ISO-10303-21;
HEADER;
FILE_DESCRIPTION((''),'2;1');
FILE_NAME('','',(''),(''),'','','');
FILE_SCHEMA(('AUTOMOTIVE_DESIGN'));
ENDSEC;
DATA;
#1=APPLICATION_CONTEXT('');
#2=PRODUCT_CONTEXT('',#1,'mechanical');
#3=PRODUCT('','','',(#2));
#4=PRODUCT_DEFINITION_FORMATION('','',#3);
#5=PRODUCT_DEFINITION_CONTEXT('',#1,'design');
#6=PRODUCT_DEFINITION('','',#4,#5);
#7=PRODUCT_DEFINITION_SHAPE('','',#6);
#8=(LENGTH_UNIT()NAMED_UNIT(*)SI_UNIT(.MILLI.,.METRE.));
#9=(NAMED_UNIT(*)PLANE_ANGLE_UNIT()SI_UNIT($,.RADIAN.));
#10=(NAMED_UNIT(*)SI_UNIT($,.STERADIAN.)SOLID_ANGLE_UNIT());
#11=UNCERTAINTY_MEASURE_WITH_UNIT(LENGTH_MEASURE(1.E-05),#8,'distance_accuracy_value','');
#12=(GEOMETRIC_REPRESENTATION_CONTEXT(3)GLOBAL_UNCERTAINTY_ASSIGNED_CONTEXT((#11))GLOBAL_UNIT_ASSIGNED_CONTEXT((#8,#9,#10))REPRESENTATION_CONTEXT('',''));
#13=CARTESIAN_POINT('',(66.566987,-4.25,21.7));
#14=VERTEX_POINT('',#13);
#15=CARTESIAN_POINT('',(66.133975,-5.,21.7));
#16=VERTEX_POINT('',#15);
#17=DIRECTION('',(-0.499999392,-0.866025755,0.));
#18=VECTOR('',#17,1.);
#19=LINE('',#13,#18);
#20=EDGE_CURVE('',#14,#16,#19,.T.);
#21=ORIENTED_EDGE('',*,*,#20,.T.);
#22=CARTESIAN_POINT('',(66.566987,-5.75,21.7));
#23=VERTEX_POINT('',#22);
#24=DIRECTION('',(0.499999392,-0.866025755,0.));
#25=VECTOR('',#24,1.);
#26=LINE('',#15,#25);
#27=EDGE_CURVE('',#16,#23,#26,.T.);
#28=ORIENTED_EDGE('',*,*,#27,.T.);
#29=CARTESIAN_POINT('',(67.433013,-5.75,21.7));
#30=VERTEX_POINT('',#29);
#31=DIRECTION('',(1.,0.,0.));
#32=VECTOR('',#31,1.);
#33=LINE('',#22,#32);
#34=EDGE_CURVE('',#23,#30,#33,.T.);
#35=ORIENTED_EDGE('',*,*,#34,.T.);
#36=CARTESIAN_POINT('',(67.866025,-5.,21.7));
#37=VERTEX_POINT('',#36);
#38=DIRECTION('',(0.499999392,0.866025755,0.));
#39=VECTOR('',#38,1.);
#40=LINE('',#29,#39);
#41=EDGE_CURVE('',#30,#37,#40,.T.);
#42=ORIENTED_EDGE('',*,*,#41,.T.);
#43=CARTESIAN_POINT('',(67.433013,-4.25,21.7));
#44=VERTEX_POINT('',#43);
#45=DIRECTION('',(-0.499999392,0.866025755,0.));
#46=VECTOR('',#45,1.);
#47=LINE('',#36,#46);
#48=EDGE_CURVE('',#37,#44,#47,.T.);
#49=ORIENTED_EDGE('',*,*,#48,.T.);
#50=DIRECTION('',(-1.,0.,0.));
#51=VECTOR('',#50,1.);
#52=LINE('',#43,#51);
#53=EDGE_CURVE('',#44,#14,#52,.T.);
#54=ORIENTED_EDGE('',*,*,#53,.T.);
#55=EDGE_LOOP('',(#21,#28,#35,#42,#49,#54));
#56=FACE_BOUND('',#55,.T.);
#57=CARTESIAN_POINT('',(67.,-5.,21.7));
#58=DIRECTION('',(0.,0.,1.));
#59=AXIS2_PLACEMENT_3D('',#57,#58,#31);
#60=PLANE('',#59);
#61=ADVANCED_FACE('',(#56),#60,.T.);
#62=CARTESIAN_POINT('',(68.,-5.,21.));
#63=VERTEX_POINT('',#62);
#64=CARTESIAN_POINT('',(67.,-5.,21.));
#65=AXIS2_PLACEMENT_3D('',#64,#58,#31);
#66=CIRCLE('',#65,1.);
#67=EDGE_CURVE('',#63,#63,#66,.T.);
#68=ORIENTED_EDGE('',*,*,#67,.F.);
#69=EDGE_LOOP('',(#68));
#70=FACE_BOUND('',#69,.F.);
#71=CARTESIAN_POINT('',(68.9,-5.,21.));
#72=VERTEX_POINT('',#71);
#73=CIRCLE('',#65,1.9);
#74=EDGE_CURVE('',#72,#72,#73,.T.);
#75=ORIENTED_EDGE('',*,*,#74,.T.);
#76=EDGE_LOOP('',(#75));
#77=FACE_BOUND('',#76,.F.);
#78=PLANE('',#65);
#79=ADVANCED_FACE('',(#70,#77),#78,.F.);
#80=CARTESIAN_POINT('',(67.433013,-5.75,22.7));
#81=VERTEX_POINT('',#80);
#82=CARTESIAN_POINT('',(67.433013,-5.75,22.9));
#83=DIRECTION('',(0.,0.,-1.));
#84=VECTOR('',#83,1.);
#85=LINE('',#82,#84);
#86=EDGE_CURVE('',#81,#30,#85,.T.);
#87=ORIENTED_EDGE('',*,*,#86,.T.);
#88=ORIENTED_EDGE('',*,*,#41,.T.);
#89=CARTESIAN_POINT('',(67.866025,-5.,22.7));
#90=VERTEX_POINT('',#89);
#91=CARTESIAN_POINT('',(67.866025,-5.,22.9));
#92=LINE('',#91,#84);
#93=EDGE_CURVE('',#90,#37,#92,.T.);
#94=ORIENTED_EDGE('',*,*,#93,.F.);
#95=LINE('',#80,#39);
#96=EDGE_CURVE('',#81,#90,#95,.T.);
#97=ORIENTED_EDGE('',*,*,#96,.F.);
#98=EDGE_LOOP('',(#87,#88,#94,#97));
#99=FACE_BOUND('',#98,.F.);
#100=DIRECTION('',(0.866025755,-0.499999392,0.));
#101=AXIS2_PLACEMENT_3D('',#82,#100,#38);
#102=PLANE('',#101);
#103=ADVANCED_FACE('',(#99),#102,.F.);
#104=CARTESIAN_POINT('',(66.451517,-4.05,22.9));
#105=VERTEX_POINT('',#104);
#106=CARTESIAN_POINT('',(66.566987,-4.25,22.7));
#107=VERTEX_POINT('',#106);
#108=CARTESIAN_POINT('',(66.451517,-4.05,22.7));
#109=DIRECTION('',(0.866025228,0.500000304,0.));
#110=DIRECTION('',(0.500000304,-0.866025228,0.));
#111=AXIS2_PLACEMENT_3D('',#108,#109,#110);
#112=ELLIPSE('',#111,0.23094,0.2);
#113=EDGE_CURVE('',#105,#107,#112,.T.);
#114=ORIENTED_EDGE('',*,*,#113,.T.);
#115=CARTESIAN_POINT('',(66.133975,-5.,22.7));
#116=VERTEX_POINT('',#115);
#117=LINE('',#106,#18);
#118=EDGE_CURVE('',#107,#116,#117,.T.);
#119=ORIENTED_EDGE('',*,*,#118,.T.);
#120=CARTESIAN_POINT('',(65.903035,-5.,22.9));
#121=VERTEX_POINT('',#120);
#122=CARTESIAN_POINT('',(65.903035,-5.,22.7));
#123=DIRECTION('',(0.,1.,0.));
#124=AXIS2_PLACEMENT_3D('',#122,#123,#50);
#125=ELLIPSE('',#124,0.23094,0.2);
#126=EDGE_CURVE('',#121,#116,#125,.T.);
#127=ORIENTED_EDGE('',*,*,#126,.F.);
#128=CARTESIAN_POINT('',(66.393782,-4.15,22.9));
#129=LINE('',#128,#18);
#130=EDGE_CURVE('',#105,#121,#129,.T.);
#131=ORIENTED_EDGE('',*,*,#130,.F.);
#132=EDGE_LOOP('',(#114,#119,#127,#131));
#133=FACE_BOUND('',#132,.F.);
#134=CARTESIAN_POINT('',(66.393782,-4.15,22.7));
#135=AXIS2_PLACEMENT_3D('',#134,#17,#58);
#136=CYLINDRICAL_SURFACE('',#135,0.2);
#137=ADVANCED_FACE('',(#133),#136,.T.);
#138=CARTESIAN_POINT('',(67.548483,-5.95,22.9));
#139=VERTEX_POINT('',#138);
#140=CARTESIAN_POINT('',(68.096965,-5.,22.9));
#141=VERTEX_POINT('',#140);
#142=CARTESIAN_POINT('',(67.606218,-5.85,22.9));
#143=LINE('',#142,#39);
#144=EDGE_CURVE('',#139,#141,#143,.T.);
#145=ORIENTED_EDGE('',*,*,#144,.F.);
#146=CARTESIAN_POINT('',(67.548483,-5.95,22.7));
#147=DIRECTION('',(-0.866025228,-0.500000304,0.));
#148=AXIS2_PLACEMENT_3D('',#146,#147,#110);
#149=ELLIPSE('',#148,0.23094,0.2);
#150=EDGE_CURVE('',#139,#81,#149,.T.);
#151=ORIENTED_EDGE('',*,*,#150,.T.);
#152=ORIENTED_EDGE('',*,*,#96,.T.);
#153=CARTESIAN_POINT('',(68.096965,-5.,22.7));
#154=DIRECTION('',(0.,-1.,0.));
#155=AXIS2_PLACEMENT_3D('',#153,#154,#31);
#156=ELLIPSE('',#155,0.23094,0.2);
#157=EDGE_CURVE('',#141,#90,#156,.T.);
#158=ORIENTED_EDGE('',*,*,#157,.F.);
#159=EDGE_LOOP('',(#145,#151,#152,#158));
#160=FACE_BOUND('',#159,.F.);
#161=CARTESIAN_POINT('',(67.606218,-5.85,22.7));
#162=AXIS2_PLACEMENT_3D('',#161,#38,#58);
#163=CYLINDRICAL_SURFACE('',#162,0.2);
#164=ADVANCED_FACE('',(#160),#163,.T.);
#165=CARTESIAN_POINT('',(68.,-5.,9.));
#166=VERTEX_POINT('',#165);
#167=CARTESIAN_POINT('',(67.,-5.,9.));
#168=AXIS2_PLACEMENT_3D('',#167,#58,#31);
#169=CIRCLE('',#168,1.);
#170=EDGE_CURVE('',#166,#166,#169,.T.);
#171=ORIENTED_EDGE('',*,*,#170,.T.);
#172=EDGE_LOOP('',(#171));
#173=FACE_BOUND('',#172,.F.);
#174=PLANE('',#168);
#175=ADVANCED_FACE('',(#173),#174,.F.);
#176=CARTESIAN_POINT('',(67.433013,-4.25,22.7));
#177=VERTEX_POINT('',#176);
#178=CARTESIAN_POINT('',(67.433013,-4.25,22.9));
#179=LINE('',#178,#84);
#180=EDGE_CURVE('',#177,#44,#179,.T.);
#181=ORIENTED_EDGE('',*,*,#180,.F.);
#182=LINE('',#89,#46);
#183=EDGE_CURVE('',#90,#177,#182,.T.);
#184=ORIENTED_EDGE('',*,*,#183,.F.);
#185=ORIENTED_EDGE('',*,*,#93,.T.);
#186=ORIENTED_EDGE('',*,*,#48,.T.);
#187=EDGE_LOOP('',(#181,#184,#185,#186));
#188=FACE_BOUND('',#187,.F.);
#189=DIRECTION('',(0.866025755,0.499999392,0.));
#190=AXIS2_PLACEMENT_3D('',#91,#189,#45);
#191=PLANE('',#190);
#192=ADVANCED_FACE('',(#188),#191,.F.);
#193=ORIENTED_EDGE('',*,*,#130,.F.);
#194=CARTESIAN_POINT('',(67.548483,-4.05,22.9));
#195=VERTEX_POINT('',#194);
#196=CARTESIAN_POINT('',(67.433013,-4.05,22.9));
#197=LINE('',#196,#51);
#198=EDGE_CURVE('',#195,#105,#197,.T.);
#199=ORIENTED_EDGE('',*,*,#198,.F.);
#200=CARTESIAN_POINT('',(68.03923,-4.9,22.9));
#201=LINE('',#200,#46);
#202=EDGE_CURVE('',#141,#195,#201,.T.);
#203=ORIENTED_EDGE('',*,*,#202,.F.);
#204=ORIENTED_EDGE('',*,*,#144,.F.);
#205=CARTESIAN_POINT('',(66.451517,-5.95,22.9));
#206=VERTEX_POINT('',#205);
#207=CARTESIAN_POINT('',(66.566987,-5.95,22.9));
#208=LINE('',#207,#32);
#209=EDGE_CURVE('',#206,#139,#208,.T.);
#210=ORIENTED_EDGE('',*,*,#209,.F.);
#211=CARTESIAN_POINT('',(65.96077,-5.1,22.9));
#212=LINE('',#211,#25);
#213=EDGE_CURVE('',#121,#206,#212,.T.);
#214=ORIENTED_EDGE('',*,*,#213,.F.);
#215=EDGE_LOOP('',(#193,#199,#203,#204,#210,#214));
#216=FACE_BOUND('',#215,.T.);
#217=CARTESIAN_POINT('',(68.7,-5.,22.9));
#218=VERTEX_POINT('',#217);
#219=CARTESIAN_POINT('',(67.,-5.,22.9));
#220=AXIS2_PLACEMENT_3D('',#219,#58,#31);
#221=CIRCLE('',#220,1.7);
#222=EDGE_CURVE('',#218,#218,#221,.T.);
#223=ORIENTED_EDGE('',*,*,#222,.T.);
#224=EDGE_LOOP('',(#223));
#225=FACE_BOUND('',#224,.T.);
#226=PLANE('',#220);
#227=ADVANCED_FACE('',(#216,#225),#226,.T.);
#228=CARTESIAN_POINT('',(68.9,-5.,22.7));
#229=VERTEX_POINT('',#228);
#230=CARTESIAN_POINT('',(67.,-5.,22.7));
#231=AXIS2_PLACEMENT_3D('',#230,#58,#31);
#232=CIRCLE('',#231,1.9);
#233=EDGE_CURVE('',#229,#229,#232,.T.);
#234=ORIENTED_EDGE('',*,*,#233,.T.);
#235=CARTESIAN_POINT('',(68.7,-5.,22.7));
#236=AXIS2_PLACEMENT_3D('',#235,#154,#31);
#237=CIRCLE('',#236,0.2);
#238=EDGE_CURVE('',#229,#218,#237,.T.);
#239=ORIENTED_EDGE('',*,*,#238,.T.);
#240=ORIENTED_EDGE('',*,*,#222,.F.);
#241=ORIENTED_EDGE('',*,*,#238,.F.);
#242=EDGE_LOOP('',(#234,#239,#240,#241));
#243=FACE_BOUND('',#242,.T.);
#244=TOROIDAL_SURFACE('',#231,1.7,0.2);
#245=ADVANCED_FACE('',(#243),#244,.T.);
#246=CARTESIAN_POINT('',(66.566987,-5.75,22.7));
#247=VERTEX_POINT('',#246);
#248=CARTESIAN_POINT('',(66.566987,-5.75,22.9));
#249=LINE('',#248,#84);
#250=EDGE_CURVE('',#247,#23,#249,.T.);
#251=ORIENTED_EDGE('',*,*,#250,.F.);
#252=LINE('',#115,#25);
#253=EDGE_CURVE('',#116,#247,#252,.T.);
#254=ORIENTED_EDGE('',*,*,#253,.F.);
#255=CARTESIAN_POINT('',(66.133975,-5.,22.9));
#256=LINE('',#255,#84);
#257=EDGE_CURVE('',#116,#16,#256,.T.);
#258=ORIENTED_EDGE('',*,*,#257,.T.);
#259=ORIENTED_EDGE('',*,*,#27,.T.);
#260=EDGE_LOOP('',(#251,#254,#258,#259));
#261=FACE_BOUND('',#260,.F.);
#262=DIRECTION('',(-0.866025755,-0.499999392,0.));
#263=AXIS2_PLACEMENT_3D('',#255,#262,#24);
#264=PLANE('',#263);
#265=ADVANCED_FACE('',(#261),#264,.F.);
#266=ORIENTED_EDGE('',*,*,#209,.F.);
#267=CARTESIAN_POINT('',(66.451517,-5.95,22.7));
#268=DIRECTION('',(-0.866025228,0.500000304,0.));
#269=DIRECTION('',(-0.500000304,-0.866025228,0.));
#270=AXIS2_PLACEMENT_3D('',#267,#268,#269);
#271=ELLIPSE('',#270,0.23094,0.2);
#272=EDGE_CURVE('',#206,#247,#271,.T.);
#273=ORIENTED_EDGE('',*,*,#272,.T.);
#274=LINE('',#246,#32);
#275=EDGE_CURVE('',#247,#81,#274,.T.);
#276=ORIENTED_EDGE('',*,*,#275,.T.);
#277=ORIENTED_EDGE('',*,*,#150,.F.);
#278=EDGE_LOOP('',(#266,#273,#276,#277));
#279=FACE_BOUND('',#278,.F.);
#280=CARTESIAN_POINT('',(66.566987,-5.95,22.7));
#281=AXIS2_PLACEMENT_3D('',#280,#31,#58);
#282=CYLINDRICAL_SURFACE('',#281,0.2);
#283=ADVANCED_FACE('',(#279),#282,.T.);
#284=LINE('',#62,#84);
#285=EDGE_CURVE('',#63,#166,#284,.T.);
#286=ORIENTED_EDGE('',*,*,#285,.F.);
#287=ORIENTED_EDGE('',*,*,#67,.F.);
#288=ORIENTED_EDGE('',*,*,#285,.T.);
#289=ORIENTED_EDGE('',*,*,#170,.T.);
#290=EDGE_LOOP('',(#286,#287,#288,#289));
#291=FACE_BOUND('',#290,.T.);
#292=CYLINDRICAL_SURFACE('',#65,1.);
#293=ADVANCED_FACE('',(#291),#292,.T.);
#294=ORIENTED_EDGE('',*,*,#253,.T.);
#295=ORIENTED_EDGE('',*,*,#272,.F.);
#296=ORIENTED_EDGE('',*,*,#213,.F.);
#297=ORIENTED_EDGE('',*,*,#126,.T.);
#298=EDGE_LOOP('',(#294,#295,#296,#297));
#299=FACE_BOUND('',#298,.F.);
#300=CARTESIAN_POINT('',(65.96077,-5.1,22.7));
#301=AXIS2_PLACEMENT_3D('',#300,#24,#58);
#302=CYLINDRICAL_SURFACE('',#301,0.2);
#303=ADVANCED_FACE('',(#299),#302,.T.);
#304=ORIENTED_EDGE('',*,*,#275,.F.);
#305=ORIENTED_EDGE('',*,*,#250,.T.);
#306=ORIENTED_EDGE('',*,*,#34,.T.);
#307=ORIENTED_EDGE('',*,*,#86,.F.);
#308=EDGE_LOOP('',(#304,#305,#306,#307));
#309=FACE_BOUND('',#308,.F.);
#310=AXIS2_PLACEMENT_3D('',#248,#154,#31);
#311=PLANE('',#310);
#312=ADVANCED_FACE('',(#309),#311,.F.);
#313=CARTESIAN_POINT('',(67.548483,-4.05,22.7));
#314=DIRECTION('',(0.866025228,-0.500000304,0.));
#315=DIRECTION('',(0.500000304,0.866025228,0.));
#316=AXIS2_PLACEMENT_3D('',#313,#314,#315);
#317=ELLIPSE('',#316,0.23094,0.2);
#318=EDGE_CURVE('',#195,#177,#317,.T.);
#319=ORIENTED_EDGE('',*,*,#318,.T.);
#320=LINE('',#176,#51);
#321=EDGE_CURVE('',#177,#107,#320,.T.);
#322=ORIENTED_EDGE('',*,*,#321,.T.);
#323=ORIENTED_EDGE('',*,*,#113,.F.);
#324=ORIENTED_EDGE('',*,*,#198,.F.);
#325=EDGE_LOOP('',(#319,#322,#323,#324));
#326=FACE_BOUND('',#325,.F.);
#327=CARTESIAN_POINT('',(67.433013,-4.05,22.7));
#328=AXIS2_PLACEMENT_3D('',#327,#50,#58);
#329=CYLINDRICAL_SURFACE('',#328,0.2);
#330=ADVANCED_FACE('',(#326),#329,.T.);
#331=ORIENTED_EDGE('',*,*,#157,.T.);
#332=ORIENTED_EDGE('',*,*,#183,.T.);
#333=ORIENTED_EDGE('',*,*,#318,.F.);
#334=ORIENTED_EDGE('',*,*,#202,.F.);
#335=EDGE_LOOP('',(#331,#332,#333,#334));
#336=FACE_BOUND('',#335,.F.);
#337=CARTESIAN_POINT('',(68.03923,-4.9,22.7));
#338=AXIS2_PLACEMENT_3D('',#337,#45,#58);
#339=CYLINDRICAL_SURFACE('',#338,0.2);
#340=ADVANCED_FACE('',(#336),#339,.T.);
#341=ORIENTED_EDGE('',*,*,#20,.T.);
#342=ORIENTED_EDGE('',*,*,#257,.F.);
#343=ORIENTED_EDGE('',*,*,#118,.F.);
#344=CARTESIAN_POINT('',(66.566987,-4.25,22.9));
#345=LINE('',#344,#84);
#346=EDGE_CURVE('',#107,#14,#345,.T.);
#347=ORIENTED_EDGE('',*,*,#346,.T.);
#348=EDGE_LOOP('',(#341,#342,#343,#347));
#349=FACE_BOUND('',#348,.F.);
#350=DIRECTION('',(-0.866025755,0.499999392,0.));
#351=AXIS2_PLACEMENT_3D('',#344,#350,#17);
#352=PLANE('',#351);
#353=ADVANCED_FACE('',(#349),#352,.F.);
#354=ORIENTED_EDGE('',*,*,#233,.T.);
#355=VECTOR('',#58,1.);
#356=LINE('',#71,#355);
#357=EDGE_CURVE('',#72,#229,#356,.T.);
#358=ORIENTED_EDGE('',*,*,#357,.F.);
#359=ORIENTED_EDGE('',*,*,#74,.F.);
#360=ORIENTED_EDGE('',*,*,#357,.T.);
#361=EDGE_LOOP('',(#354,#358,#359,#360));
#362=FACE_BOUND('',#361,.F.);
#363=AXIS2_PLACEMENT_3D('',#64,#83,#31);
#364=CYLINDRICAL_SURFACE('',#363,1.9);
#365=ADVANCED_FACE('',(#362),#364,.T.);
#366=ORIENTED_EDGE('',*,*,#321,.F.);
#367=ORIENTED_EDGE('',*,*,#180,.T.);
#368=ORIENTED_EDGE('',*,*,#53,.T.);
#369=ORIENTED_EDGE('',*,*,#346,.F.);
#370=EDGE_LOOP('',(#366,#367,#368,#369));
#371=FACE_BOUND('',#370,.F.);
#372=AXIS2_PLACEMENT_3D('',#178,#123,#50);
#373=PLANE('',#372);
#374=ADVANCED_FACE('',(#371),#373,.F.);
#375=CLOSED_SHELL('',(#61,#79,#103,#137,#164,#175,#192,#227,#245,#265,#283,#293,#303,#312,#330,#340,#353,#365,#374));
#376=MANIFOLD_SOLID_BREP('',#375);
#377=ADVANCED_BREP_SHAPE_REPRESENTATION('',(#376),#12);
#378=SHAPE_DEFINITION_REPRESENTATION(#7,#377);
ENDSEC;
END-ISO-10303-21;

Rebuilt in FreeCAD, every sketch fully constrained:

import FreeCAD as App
import Part
import Sketcher

V = App.Vector


def edges_at(feature, points):
    """Names of the edges that pass closest to the given points."""
    edges = feature.Shape.Edges
    near = lambda p: min(range(len(edges)), key=lambda i: edges[i].distToShape(Part.Vertex(*p))[0])
    return sorted({f"Edge{near(p) + 1}" for p in points})

doc = App.newDocument("Part")
params = doc.addObject("Spreadsheet::Sheet", "Params")
for row, (alias, value) in enumerate([
    ("sketch1_diameter", "3.8 mm"),
    ("pad1_length", "1.9 mm"),
    ("pocket1_length", "1.2 mm"),
    ("sketch3_diameter", "2 mm"),
    ("pad2_length", "12 mm"),
    ("fillet_radius", "0.2 mm"),
], start=1):
    params.set(f"A{row}", alias)
    params.set(f"B{row}", "=" + value)
    params.setAlias(f"B{row}", alias)

body = doc.addObject("PartDesign::Body", "Body")

# Sketch on XY plane
sketch1 = body.newObject("Sketcher::SketchObject", "Sketch")
sketch1.AttachmentSupport = (doc.getObject("XY_Plane"), [""])
sketch1.MapMode = "FlatFace"
sketch1.addGeometry(Part.Circle(V(0, 0, 0), V(0, 0, 1), 1.9), False)
sketch1.addConstraint([
    Sketcher.Constraint("Coincident", 0, 3, -1, 1),
    Sketcher.Constraint("Diameter", 0, 3.8),
])
sketch1.setExpression("Constraints[1]", "Params.sketch1_diameter")
pad1 = body.newObject("PartDesign::Pad", "Pad")
pad1.Profile = sketch1
pad1.setExpression("Length", "Params.pad1_length")

# Sketch on XY plane
sketch2 = body.newObject("Sketcher::SketchObject", "Sketch001")
sketch2.AttachmentSupport = (doc.getObject("XY_Plane"), [""])
sketch2.MapMode = "FlatFace"
sketch2.AttachmentOffset = App.Placement(V(0, 0, 1.9), App.Rotation())
sketch2.addGeometry([
    Part.LineSegment(V(0.9, 0, 0), V(0.4, 0.8, 0)),  # 0
    Part.LineSegment(V(0.4, 0.8, 0), V(-0.4, 0.8, 0)),  # 1
    Part.LineSegment(V(-0.4, 0.8, 0), V(-0.9, 0, 0)),  # 2
    Part.LineSegment(V(-0.9, 0, 0), V(-0.4, -0.8, 0)),  # 3
    Part.LineSegment(V(-0.4, -0.8, 0), V(0.4, -0.8, 0)),  # 4
    Part.LineSegment(V(0.4, -0.8, 0), V(0.9, 0, 0)),  # 5
], False)
sketch2.addConstraint([
    Sketcher.Constraint("Coincident", 0, 2, 1, 1),
    Sketcher.Constraint("Coincident", 1, 2, 2, 1),
    Sketcher.Constraint("Coincident", 2, 2, 3, 1),
    Sketcher.Constraint("Coincident", 3, 2, 4, 1),
    Sketcher.Constraint("Coincident", 4, 2, 5, 1),
    Sketcher.Constraint("Coincident", 5, 2, 0, 1),
    Sketcher.Constraint("Horizontal", 1),
    Sketcher.Constraint("Horizontal", 4),
    Sketcher.Constraint("Symmetric", 0, 2, 3, 2, -1, 1),
    Sketcher.Constraint("Symmetric", 2, 2, 5, 2, -1, 1),
    Sketcher.Constraint("PointOnObject", 2, 2, -1),
    Sketcher.Constraint("Parallel", 2, 5),
    Sketcher.Constraint("Vertical", 1, 2, 3, 2),
    Sketcher.Constraint("DistanceY", 3, 2, 1, 2, 1.5),
    Sketcher.Constraint("DistanceX", 1, 2, 1, 1, 0.866026),
    Sketcher.Constraint("DistanceX", 2, 2, 5, 2, 1.73205),
])
pocket1 = body.newObject("PartDesign::Pocket", "Pocket")
pocket1.Profile = sketch2
pocket1.setExpression("Length", "Params.pocket1_length")

# Sketch on XY plane
sketch3 = body.newObject("Sketcher::SketchObject", "Sketch002")
sketch3.AttachmentSupport = (doc.getObject("XY_Plane"), [""])
sketch3.MapMode = "FlatFace"
sketch3.addGeometry(Part.Circle(V(0, 0, 0), V(0, 0, 1), 1), False)
sketch3.addConstraint([
    Sketcher.Constraint("Coincident", 0, 3, -1, 1),
    Sketcher.Constraint("Diameter", 0, 2.0),
])
sketch3.setExpression("Constraints[1]", "Params.sketch3_diameter")
pad2 = body.newObject("PartDesign::Pad", "Pad001")
pad2.Profile = sketch3
pad2.setExpression("Length", "Params.pad2_length")
pad2.Reversed = True
doc.recompute()

fillet = body.newObject("PartDesign::Fillet", "Fillet")
fillet.Base = (pad2, edges_at(pad2, [
    (-1.9, 0, 1.9),
    (-0.65, 0.375, 1.9),
    (-0.65, -0.375, 1.9),
    (0, -0.75, 1.9),
    (0.65, -0.375, 1.9),
    (0.65, 0.375, 1.9),
    (0, 0.75, 1.9),
]))
fillet.setExpression("Radius", "Params.fillet_radius")
body2 = doc.addObject("PartDesign::Body", "Body001")
doc.recompute()

body.Placement = App.Placement(V(40, -5, 15), App.Rotation(V(1, 0, 0), 90))
boolean = body2.newObject("PartDesign::Boolean", "Boolean")
boolean.Type = "Fuse"
boolean.addObjects([body])
body3 = doc.addObject("PartDesign::Body", "Body002")
doc.recompute()

body2.Placement = App.Placement(V(-40, -15, -5), App.Rotation(V(-1, 0, 0), 90))
boolean2 = body3.newObject("PartDesign::Boolean", "Boolean001")
boolean2.Type = "Fuse"
boolean2.addObjects([body2])
body4 = doc.addObject("PartDesign::Body", "Body003")
doc.recompute()

body3.Placement = App.Placement(V(67, -5, 21), App.Rotation(V(0, 0, 1), 0))
boolean3 = body4.newObject("PartDesign::Boolean", "Boolean002")
boolean3.Type = "Fuse"
boolean3.addObjects([body3])

doc.recompute()
